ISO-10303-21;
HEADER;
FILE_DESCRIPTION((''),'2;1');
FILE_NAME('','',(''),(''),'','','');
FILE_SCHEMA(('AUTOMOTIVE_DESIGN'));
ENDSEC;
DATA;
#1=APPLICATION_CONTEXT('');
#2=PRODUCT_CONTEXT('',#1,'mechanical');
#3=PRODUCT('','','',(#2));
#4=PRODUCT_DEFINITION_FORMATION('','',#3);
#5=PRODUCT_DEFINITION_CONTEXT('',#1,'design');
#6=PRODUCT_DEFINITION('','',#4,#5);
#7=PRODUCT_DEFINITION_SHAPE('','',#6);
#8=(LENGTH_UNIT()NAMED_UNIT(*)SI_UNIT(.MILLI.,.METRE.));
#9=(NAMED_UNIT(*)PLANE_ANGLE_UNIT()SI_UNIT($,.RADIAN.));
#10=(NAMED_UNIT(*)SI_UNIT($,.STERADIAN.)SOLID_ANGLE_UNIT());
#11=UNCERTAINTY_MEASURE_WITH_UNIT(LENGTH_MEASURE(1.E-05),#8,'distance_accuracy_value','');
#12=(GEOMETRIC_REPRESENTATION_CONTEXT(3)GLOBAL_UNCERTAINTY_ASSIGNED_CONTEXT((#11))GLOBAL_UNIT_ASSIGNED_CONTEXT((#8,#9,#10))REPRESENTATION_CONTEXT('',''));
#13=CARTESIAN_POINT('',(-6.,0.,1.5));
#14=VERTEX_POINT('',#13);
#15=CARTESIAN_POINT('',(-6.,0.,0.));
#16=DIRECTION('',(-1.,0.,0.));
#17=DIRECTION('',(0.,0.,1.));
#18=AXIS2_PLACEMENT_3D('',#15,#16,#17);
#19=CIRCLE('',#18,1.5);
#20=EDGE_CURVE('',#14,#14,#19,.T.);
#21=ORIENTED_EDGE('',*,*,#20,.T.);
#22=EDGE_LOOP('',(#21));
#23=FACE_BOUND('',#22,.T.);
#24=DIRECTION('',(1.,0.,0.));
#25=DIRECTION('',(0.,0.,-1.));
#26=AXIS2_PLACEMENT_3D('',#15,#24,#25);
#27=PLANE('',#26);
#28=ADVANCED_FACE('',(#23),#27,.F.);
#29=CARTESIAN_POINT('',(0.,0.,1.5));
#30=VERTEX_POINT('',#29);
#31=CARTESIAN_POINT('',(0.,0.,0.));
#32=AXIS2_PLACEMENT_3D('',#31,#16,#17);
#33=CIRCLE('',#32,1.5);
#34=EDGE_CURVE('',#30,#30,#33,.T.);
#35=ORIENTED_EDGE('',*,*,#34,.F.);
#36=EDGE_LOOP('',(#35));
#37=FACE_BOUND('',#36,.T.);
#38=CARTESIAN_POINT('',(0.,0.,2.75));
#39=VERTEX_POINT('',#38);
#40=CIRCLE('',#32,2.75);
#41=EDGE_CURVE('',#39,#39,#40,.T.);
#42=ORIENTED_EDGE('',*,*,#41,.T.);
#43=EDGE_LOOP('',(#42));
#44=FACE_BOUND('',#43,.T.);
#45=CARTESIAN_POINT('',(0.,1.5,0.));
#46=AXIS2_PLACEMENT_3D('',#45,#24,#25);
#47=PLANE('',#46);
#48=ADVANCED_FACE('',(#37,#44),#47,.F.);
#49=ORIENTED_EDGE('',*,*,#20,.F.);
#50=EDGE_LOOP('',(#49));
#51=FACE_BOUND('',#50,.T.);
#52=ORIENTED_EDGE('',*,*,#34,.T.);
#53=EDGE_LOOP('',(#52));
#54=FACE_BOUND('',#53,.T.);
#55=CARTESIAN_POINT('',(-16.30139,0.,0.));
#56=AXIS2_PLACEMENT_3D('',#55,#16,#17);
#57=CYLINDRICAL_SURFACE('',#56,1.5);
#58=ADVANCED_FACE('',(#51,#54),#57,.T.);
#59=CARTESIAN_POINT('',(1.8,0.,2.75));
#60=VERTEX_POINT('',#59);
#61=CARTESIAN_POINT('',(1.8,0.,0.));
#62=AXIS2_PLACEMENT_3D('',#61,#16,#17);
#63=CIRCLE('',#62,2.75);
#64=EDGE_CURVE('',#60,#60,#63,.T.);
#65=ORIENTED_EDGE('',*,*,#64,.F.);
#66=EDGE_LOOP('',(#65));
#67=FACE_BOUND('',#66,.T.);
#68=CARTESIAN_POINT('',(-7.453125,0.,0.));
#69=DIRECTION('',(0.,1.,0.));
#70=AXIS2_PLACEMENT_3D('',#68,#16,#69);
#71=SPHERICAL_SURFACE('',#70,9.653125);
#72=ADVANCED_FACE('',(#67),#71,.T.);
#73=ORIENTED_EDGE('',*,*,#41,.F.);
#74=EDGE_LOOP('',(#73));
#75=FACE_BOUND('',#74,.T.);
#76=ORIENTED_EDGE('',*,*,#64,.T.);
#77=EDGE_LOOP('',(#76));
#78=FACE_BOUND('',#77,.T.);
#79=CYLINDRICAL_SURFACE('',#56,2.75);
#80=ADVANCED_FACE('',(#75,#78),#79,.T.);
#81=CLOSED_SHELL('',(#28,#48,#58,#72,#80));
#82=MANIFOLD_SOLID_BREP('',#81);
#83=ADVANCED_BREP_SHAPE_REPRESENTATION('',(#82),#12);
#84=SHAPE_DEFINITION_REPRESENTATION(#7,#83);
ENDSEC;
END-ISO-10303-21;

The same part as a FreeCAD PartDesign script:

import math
import FreeCAD as App
import Part
import Sketcher
Q = App.Units.Quantity

doc = App.newDocument("Part")
body = doc.addObject("PartDesign::Body", "Body")

sketch1 = doc.addObject("Sketcher::SketchObject", "Sketch")
body.addObject(sketch1)
sketch1.AttachmentSupport = (doc.XY_Plane, [""])
sketch1.MapMode = "FlatFace"
sketch1.addGeometry([
    Part.LineSegment(App.Vector(0, 2.8, 0), App.Vector(0, 1.5, 0)),
    Part.LineSegment(App.Vector(0, 1.5, 0), App.Vector(-6, 1.5, 0)),
    Part.LineSegment(App.Vector(-6, 1.5, 0), App.Vector(-6, 0, 0)),
    Part.LineSegment(App.Vector(-6, 0, 0), App.Vector(2.2, 0, 0)),
    Part.ArcOfCircle(Part.Circle(App.Vector(-7.5, 0, 0), App.Vector(0, 0, 1), 9.7), math.radians(0), math.radians(16.55)),
    Part.LineSegment(App.Vector(1.8, 2.8, 0), App.Vector(0, 2.8, 0)),
], False)
sketch1.addConstraint([
    Sketcher.Constraint("Coincident", 0, 2, 1, 1),
    Sketcher.Constraint("Coincident", 1, 2, 2, 1),
    Sketcher.Constraint("Coincident", 2, 2, 3, 1),
    Sketcher.Constraint("Coincident", 3, 2, 4, 1),
    Sketcher.Constraint("Coincident", 4, 2, 5, 1),
    Sketcher.Constraint("Coincident", 5, 2, 0, 1),
    Sketcher.Constraint("Vertical", 0),
    Sketcher.Constraint("Horizontal", 1),
    Sketcher.Constraint("Vertical", 2),
    Sketcher.Constraint("Horizontal", 3),
    Sketcher.Constraint("Horizontal", 5),
    Sketcher.Constraint("PointOnObject", 4, 3, -1),
    Sketcher.Constraint("PointOnObject", 0, 2, -2),
    Sketcher.Constraint("PointOnObject", 2, 2, -1),
    Sketcher.Constraint("DistanceX", 1, 2, 1, 1, Q("6 mm")),
    Sketcher.Constraint("DistanceX", 3, 1, 3, 2, Q("8.2 mm")),
    Sketcher.Constraint("DistanceX", 5, 2, 5, 1, Q("1.8 mm")),
    Sketcher.Constraint("DistanceY", 2, 2, 2, 1, Q("1.5 mm")),
    Sketcher.Constraint("DistanceY", 0, 2, 0, 1, Q("1.25 mm")),
])
revolution = doc.addObject("PartDesign::Revolution", "Revolution")
body.addObject(revolution)
revolution.Profile = sketch1
revolution.ReferenceAxis = (sketch1, ["H_Axis"])
revolution.Angle = 360

doc.recompute()
